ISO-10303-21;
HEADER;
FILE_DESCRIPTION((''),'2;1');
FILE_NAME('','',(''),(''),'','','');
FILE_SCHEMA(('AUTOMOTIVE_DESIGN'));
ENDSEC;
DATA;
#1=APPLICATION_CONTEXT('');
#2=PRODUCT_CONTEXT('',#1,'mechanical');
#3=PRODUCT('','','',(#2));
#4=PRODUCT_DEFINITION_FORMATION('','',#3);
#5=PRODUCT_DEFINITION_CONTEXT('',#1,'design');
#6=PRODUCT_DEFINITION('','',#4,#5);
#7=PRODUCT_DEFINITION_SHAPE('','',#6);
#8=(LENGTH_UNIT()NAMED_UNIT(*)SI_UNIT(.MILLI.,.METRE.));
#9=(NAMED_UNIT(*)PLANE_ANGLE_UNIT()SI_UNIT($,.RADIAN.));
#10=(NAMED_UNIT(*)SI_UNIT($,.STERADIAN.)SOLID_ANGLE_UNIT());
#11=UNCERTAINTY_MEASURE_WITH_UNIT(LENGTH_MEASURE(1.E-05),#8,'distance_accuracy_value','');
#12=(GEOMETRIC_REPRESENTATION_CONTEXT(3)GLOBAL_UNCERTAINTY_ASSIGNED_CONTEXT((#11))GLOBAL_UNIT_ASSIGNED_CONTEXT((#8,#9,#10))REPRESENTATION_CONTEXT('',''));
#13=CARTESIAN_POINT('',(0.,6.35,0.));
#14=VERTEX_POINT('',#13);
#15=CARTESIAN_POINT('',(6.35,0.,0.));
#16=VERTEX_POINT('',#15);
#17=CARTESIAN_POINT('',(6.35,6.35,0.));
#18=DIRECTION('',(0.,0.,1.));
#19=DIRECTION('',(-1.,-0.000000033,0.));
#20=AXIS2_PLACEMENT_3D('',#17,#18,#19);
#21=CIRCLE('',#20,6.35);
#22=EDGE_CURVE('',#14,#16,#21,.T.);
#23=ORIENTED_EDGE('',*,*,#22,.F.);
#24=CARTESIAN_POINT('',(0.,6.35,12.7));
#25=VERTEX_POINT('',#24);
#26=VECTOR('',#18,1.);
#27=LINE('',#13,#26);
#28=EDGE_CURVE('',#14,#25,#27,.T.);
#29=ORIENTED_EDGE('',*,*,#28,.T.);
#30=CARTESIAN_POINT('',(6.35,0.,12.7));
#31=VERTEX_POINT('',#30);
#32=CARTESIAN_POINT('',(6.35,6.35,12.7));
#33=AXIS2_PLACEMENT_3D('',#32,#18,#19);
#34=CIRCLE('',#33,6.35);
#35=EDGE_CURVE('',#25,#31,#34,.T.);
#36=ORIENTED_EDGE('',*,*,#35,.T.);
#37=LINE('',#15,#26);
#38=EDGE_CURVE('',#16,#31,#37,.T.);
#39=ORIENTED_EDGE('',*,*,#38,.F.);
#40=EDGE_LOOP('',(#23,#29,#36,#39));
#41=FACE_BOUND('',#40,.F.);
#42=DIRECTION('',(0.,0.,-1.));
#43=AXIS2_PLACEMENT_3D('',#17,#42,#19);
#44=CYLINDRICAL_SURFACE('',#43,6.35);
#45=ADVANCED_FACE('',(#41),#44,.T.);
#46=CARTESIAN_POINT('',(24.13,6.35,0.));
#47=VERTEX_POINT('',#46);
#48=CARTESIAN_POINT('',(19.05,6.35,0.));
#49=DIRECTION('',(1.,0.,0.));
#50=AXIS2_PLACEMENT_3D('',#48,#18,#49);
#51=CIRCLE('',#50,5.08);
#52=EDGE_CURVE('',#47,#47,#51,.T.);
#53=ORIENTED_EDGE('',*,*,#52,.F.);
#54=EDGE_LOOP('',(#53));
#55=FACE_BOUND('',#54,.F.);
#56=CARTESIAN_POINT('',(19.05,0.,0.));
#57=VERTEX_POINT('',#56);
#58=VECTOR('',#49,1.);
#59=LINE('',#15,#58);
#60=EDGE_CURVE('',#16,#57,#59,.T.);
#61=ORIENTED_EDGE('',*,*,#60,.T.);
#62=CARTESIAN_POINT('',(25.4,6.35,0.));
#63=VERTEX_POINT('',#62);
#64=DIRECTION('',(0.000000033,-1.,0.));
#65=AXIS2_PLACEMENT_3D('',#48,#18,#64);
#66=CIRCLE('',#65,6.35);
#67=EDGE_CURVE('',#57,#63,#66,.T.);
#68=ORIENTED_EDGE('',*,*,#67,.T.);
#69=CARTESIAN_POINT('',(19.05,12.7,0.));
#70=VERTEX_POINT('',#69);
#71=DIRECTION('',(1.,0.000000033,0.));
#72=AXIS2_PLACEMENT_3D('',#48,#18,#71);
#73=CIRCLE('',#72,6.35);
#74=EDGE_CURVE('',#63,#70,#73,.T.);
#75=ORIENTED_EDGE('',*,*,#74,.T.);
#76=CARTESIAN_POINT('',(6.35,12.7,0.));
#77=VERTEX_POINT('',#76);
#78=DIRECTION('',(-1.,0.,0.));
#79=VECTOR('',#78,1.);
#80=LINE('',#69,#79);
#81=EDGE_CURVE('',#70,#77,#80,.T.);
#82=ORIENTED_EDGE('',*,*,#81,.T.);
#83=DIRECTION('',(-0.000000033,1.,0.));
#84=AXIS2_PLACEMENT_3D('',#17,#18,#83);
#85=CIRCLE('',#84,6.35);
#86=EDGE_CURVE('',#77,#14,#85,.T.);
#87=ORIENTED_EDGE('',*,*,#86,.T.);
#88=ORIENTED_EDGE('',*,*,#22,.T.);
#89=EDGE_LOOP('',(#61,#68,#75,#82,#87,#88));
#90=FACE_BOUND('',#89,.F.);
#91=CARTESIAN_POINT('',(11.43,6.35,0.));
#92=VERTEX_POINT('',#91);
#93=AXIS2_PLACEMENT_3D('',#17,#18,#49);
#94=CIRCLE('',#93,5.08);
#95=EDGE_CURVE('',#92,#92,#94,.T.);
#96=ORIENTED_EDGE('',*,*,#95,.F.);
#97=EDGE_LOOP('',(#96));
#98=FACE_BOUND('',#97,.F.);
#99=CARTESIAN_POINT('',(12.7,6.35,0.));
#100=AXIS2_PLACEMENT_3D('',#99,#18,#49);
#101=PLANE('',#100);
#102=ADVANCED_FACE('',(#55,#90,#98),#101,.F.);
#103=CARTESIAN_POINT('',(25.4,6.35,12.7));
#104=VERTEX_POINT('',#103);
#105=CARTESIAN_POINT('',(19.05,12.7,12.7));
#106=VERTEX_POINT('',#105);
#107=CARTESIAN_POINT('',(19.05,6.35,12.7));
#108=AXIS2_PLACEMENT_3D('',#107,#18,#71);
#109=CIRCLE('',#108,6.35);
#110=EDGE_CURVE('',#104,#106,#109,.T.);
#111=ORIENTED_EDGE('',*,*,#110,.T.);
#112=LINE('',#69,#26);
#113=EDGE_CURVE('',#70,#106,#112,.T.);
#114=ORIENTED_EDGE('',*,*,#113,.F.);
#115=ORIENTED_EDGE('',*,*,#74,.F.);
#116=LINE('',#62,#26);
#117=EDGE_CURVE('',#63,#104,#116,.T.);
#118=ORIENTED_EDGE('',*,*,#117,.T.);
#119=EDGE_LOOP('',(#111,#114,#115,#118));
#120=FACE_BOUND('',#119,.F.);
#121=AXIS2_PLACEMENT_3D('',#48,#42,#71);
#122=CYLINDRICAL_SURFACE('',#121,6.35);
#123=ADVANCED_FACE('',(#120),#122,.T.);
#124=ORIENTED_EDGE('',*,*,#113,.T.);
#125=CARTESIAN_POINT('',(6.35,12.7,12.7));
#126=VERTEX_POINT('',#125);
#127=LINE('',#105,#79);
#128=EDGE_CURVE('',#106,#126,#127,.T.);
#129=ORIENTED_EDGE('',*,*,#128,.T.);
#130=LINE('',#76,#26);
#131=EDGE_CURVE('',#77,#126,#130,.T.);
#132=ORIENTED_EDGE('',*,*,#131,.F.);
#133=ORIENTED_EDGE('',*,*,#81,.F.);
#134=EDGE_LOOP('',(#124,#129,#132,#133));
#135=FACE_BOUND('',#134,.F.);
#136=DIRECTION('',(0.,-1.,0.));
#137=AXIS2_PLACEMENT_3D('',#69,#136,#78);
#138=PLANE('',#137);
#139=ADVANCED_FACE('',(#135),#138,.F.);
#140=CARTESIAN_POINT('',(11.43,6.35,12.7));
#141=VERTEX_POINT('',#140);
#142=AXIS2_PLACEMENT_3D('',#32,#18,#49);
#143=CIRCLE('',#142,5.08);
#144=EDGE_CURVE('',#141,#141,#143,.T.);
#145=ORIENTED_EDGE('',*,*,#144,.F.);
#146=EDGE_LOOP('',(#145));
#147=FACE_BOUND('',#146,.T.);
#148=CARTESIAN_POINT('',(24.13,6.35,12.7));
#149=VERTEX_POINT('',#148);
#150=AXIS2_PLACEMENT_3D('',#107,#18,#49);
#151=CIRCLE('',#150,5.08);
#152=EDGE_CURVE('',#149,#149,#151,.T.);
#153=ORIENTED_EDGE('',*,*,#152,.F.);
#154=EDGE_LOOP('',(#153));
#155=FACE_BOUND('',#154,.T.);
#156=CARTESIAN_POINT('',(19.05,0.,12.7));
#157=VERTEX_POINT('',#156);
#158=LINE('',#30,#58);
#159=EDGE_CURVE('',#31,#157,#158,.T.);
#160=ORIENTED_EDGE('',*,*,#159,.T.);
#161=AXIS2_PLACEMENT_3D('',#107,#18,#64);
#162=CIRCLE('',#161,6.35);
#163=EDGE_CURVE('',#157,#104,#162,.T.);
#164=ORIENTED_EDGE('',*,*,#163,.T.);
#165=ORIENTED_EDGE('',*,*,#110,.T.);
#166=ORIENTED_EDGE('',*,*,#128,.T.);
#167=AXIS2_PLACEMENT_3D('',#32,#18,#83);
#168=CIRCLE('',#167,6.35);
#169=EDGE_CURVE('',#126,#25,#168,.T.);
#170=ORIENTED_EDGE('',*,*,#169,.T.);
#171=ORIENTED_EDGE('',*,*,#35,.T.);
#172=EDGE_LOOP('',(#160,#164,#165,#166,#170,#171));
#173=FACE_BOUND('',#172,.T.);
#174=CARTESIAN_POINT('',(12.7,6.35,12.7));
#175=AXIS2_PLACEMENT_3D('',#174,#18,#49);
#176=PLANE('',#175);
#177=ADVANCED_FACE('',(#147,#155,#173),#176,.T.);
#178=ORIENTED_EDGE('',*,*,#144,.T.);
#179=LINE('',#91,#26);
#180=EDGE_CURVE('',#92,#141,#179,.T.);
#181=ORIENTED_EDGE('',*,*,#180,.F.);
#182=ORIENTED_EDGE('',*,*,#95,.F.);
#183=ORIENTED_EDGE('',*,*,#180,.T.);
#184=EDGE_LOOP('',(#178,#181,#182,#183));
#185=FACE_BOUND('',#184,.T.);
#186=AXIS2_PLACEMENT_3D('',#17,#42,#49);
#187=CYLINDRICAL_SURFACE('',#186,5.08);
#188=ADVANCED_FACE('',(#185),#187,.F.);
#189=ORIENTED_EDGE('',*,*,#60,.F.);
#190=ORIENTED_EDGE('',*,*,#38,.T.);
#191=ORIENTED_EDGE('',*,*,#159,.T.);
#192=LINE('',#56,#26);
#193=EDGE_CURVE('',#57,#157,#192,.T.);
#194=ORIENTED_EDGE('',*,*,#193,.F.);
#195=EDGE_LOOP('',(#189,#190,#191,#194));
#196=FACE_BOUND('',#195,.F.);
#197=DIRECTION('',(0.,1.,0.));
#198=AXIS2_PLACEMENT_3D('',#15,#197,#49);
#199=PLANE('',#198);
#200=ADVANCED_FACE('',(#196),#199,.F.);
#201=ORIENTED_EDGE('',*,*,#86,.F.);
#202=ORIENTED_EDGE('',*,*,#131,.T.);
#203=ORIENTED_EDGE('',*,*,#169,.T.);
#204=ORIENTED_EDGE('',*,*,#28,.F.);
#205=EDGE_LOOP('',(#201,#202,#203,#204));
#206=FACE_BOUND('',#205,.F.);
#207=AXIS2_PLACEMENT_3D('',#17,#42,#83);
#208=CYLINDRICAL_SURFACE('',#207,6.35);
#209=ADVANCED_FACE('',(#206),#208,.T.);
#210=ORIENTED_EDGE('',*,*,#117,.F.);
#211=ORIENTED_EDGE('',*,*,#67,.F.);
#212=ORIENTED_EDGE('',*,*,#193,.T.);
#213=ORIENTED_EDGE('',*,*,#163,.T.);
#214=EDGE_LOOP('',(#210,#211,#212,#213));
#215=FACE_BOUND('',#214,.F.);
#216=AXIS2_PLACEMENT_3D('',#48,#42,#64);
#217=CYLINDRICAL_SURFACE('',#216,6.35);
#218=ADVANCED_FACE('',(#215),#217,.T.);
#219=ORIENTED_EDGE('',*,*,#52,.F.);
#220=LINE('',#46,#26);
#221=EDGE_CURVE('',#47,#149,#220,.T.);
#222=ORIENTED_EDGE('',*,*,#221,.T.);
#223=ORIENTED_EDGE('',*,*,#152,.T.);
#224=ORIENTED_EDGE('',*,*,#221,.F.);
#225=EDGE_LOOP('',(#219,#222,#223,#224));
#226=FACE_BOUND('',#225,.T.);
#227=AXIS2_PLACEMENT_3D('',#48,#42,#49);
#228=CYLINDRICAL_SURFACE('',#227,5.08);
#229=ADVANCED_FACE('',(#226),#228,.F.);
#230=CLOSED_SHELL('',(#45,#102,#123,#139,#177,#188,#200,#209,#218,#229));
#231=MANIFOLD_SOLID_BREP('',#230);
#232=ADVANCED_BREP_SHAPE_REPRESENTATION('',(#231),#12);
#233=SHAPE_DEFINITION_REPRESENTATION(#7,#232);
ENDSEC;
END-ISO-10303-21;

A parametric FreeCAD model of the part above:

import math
import FreeCAD as App
import Part
import Sketcher
from FreeCAD import Vector
Q = App.Units.Quantity

doc = App.newDocument("Part")
body = doc.addObject("PartDesign::Body", "Body")

sketch1 = body.newObject("Sketcher::SketchObject", "Sketch")
sketch1.AttachmentSupport = (doc.getObject("XY_Plane"), [""])
sketch1.MapMode = "FlatFace"
sketch1.addGeometry([
    Part.ArcOfCircle(Part.Circle(Vector(6, 6, 0), Vector(0, 0, 1), 6), math.radians(-180), math.radians(-90)),
    Part.LineSegment(Vector(6, 0, 0), Vector(19, 0, 0)),
    Part.ArcOfCircle(Part.Circle(Vector(19, 6, 0), Vector(0, 0, 1), 6), math.radians(-90), math.radians(0)),
    Part.ArcOfCircle(Part.Circle(Vector(19, 6, 0), Vector(0, 0, 1), 6), math.radians(0), math.radians(90)),
    Part.LineSegment(Vector(19, 13, 0), Vector(6, 13, 0)),
    Part.ArcOfCircle(Part.Circle(Vector(6, 6, 0), Vector(0, 0, 1), 6), math.radians(90), math.radians(180)),
    Part.Circle(Vector(6, 6, 0), Vector(0, 0, 1), 5),
    Part.Circle(Vector(19, 6, 0), Vector(0, 0, 1), 5),
], False)
sketch1.addConstraint([
    Sketcher.Constraint("Tangent", 0, 2, 1, 1),
    Sketcher.Constraint("Tangent", 1, 2, 2, 1),
    Sketcher.Constraint("Tangent", 2, 2, 3, 1),
    Sketcher.Constraint("Tangent", 3, 2, 4, 1),
    Sketcher.Constraint("Tangent", 4, 2, 5, 1),
    Sketcher.Constraint("Tangent", 5, 2, 0, 1),
    Sketcher.Constraint("Horizontal", 1),
    Sketcher.Constraint("Horizontal", 4),
    Sketcher.Constraint("Coincident", 6, 3, 0, 3),
    Sketcher.Constraint("Coincident", 7, 3, 2, 3),
    Sketcher.Constraint("Equal", 0, 2),
    Sketcher.Constraint("Equal", 2, 3),
    Sketcher.Constraint("Equal", 6, 7),
    Sketcher.Constraint("PointOnObject", 0, 2, -1),
    Sketcher.Constraint("PointOnObject", 5, 2, -2),
    Sketcher.Constraint("Horizontal", 7, 3, 2, 2),
    Sketcher.Constraint("Horizontal", 2, 2, 5, 2),
    Sketcher.Constraint("Diameter", 6, Q("0.4 in")),
    Sketcher.Constraint("Radius", 0, Q("0.25 in")),
    Sketcher.Constraint("DistanceX", 1, 1, 1, 2, Q("0.5 in")),
])
pad1 = body.newObject("PartDesign::Pad", "Pad")
pad1.Profile = sketch1
pad1.Length = Q("0.5 in")

doc.recompute()
